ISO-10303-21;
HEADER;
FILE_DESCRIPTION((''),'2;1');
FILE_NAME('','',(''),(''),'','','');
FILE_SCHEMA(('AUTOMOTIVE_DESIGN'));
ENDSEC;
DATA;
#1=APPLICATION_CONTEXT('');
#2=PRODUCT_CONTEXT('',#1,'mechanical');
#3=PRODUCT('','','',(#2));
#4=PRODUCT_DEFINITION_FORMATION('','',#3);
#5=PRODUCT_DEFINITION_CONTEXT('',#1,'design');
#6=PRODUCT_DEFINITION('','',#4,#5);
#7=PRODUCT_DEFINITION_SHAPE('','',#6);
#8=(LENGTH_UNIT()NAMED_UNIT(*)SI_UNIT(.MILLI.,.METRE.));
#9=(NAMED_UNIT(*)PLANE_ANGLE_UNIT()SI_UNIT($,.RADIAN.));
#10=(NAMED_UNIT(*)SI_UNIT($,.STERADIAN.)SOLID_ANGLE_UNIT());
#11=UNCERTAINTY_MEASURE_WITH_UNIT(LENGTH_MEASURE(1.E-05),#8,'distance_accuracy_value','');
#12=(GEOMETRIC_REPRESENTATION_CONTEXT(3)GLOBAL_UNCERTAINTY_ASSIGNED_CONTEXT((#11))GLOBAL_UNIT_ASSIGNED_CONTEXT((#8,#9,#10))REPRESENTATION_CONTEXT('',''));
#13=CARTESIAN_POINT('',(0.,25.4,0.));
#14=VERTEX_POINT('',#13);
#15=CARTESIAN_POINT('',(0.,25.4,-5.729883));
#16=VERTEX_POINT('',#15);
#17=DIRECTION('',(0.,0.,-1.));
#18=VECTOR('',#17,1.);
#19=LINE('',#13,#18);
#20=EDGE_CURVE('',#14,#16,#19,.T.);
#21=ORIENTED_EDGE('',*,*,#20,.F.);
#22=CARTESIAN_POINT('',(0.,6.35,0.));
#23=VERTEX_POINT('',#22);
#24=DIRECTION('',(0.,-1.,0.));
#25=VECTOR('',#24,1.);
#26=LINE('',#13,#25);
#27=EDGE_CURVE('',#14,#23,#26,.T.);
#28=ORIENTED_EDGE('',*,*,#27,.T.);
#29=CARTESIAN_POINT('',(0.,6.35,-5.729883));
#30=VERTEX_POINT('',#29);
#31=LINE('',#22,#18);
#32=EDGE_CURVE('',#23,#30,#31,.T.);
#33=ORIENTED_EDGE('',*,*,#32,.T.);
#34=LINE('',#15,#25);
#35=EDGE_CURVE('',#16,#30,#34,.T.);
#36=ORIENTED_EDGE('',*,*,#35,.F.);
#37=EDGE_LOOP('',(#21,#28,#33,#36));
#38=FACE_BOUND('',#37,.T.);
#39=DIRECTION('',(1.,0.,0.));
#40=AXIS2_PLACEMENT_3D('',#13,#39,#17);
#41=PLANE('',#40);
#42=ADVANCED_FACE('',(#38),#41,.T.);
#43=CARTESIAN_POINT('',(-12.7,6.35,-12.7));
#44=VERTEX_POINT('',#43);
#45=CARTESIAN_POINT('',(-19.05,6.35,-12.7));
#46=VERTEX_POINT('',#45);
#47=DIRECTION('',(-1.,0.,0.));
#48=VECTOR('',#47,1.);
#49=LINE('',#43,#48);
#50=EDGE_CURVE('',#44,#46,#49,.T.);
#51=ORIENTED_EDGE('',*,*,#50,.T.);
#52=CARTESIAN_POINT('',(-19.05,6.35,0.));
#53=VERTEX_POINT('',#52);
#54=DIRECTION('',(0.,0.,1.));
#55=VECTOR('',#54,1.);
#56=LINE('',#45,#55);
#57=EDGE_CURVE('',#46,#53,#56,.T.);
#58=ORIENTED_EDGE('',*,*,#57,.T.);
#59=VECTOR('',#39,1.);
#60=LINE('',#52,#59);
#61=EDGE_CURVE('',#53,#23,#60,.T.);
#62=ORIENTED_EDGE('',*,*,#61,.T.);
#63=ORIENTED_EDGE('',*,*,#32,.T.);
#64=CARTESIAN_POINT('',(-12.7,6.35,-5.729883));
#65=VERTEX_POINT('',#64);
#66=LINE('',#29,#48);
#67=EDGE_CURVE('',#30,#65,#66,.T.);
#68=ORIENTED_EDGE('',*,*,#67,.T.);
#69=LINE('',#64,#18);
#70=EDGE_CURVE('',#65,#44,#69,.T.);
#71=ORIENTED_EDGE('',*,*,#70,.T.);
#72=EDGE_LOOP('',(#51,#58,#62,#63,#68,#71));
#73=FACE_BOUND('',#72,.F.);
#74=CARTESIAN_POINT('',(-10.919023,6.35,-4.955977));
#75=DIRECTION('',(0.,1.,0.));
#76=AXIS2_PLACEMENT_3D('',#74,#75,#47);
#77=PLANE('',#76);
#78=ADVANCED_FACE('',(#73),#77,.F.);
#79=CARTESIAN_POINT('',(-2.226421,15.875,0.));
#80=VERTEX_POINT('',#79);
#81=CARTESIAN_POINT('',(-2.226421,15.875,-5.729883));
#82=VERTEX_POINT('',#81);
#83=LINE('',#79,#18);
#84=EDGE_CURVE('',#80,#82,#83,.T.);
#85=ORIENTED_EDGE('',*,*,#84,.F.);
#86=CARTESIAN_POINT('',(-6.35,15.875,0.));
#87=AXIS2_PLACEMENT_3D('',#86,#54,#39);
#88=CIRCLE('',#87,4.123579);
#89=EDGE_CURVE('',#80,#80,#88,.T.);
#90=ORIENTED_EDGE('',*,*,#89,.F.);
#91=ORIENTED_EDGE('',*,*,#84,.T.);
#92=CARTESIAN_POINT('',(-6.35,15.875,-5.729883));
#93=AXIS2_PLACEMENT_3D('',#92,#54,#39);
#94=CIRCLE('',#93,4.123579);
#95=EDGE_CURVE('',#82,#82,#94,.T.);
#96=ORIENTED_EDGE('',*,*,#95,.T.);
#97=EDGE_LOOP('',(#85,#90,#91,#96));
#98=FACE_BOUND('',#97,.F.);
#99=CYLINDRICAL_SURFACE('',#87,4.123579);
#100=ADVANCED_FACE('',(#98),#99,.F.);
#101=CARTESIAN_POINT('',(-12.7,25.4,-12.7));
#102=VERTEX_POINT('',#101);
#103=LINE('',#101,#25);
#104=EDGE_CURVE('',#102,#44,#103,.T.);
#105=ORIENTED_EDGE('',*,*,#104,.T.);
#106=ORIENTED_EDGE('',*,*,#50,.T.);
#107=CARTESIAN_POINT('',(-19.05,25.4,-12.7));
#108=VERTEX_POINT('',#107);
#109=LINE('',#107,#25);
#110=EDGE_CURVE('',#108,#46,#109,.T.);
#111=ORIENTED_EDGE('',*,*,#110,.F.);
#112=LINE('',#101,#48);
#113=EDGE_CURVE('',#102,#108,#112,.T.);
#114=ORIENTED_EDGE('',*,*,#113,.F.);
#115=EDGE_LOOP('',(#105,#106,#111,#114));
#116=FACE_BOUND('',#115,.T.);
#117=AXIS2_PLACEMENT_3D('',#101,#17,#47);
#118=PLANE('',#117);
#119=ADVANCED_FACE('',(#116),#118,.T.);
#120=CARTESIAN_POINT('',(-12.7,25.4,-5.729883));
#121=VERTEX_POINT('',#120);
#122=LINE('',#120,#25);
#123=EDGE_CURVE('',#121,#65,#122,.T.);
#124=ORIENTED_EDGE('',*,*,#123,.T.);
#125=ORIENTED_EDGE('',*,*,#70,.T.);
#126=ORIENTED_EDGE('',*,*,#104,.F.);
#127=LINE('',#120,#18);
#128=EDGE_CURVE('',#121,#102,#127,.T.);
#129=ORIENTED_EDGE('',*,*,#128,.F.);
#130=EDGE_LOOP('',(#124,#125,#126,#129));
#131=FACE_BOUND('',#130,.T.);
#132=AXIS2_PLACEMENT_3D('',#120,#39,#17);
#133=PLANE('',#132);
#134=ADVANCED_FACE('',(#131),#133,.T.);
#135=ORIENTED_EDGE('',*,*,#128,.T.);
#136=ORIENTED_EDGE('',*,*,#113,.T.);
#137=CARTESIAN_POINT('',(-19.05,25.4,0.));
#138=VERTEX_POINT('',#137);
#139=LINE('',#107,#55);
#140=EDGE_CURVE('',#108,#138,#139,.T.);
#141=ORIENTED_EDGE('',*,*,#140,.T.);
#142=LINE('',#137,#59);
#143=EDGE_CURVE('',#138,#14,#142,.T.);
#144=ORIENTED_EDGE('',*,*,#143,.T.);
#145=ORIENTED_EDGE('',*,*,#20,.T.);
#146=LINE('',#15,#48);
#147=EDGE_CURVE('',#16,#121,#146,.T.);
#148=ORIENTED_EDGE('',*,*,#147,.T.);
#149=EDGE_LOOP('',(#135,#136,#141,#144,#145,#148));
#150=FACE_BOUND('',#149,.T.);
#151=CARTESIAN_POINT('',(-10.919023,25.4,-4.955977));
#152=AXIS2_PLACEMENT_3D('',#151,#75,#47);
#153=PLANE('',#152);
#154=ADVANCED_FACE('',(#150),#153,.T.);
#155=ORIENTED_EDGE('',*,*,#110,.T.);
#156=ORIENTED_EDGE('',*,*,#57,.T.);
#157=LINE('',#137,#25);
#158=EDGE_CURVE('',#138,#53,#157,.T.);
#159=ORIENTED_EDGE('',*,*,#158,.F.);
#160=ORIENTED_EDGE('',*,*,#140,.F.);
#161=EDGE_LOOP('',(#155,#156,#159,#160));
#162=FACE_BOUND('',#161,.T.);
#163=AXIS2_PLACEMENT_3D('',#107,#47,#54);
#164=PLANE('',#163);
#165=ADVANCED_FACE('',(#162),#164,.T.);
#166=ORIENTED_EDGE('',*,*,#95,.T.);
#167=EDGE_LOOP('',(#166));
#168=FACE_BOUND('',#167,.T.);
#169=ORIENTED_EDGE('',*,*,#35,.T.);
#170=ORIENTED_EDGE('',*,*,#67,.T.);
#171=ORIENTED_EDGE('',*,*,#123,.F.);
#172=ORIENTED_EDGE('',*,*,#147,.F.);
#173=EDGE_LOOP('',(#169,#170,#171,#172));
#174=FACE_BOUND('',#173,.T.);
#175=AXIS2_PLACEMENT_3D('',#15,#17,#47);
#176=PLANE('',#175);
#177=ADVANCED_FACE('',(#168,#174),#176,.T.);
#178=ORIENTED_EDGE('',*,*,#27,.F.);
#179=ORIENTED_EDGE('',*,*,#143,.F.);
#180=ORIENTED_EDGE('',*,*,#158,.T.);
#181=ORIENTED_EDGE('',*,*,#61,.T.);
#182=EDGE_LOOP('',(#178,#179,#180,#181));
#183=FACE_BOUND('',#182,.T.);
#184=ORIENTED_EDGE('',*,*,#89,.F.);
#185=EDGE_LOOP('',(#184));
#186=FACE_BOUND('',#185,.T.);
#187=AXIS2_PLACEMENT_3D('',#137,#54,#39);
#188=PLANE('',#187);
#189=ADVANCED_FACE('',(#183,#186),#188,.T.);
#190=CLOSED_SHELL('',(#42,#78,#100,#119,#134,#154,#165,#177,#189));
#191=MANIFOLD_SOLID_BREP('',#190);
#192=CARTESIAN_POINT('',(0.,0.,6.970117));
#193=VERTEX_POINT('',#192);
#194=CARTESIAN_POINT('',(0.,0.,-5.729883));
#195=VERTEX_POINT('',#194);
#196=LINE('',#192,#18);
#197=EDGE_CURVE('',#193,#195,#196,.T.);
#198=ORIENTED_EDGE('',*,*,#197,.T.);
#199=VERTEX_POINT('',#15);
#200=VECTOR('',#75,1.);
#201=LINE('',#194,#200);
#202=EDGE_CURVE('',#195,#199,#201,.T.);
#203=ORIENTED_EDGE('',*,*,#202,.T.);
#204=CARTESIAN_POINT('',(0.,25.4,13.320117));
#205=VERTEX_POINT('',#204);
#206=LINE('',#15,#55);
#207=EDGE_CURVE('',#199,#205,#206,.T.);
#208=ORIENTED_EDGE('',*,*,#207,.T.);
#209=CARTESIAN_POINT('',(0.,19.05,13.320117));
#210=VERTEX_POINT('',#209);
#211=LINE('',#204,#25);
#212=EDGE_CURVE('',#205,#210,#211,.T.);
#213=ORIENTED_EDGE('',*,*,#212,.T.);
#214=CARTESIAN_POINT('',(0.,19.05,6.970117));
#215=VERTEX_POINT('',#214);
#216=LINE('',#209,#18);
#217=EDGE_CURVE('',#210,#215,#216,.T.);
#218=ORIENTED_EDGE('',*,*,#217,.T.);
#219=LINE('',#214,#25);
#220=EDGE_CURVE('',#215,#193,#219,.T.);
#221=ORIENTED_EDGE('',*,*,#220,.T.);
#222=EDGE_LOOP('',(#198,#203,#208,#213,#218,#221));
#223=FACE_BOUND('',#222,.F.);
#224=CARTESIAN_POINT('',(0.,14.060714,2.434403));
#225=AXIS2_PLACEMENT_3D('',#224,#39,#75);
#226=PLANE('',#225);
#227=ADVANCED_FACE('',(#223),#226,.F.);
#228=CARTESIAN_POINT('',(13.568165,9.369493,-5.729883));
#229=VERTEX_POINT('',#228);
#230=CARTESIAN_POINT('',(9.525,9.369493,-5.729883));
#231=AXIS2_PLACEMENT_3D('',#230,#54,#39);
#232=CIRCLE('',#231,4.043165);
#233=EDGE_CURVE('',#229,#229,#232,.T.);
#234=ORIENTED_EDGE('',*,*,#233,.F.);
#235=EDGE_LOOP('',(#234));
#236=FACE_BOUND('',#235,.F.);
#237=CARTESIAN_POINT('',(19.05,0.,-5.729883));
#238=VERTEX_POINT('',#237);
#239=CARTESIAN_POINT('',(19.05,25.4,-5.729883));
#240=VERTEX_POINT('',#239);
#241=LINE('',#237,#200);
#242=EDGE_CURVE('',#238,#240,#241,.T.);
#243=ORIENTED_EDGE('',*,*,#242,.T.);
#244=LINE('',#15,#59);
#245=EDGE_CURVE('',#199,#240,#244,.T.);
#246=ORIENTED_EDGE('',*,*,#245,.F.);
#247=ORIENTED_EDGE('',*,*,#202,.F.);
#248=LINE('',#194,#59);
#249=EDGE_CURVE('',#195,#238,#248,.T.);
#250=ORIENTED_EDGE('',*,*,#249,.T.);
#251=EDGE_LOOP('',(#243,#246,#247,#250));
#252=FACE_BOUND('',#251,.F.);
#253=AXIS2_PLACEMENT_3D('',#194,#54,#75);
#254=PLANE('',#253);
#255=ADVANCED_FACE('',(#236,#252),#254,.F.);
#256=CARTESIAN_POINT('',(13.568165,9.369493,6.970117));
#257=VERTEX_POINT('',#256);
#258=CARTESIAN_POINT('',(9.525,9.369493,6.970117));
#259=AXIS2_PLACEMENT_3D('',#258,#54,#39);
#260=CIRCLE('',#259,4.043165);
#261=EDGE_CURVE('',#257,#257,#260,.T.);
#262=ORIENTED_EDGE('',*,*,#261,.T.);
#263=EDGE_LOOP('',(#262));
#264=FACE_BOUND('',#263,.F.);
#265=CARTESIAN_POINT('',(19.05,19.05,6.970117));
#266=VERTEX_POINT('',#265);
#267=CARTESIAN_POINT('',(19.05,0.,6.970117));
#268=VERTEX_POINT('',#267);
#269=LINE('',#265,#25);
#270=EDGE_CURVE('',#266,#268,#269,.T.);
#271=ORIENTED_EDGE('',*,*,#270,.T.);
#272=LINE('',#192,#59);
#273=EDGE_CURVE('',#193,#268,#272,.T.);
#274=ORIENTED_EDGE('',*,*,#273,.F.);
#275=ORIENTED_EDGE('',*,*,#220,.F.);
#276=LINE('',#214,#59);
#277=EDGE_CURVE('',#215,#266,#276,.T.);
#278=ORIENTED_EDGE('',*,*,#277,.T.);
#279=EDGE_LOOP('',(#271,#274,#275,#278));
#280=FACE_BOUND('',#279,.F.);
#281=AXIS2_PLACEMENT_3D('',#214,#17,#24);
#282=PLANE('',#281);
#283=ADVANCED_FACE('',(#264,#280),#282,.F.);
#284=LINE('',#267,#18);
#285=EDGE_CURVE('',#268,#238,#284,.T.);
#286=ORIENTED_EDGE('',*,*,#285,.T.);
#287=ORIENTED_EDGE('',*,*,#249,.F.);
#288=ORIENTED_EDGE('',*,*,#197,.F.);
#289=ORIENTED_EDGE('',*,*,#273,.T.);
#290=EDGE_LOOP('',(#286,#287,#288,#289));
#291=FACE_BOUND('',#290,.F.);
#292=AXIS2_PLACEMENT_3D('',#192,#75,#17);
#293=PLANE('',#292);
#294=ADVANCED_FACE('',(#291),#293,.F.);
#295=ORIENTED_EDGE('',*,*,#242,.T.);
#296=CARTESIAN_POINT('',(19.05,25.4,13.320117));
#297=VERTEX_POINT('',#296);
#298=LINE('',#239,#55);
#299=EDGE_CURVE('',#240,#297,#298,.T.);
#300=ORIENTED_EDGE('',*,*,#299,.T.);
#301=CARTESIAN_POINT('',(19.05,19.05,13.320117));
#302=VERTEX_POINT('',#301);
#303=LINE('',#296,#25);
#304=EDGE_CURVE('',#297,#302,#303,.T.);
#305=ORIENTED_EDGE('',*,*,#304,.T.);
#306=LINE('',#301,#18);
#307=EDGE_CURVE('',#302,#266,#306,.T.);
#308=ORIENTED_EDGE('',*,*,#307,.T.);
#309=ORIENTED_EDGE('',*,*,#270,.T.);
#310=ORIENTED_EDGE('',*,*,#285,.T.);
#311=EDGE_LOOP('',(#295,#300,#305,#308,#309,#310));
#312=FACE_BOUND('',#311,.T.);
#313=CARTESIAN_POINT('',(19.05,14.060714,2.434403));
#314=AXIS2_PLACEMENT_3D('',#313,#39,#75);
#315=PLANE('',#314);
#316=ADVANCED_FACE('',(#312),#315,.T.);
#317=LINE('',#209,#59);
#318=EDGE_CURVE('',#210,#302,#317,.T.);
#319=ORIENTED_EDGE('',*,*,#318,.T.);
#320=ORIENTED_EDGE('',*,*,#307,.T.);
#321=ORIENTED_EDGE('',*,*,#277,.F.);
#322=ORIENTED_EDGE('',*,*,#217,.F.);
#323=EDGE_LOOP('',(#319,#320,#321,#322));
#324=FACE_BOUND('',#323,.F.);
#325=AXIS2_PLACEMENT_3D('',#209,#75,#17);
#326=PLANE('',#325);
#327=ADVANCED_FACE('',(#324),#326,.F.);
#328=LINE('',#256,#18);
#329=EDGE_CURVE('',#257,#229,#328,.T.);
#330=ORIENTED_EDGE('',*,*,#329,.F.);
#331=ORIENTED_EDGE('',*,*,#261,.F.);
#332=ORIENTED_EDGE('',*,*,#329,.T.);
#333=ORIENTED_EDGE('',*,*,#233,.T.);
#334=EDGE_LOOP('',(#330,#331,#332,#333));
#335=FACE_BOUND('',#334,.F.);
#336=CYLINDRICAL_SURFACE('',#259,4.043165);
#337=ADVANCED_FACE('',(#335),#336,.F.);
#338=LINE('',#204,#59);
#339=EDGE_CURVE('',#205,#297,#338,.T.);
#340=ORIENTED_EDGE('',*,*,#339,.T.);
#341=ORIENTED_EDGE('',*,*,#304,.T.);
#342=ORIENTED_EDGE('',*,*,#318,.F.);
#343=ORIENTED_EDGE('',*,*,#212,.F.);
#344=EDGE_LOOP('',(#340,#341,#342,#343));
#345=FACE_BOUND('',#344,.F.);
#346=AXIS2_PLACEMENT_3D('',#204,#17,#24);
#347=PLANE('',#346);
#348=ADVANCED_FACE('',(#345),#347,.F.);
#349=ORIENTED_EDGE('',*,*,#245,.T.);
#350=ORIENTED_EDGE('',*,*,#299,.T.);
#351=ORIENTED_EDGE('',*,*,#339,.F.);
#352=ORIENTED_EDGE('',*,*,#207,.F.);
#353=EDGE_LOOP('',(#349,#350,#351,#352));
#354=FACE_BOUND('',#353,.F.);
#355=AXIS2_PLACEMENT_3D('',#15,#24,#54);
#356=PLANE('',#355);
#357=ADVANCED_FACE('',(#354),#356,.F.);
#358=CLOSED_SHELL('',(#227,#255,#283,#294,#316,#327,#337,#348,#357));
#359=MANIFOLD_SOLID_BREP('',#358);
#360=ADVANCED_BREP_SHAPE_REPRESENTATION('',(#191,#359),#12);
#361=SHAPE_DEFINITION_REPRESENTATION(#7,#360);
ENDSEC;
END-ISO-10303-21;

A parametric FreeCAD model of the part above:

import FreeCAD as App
import Part
import Sketcher
Q = App.Units.Quantity

doc = App.newDocument("Part")
body = doc.addObject("PartDesign::Body", "Body")

sketch1 = doc.addObject("Sketcher::SketchObject", "Sketch")
body.addObject(sketch1)
sketch1.AttachmentSupport = (doc.YZ_Plane, [""])
sketch1.MapMode = "FlatFace"
sketch1.addGeometry([
    Part.LineSegment(App.Vector(19, 7, 0), App.Vector(0, 7, 0)),
    Part.LineSegment(App.Vector(0, 7, 0), App.Vector(0, -6, 0)),
    Part.LineSegment(App.Vector(0, -6, 0), App.Vector(25, -6, 0)),
    Part.LineSegment(App.Vector(25, -6, 0), App.Vector(25, 13, 0)),
    Part.LineSegment(App.Vector(25, 13, 0), App.Vector(19, 13, 0)),
    Part.LineSegment(App.Vector(19, 13, 0), App.Vector(19, 7, 0)),
], False)
sketch1.addConstraint([
    Sketcher.Constraint("Coincident", 0, 2, 1, 1),
    Sketcher.Constraint("Coincident", 1, 2, 2, 1),
    Sketcher.Constraint("Coincident", 2, 2, 3, 1),
    Sketcher.Constraint("Coincident", 3, 2, 4, 1),
    Sketcher.Constraint("Coincident", 4, 2, 5, 1),
    Sketcher.Constraint("Coincident", 5, 2, 0, 1),
    Sketcher.Constraint("Horizontal", 0),
    Sketcher.Constraint("Vertical", 1),
    Sketcher.Constraint("Horizontal", 2),
    Sketcher.Constraint("Vertical", 3),
    Sketcher.Constraint("Horizontal", 4),
    Sketcher.Constraint("Vertical", 5),
    Sketcher.Constraint("PointOnObject", 0, 2, -2),
    Sketcher.Constraint("Equal", 0, 3),
    Sketcher.Constraint("Equal", 4, 5),
    Sketcher.Constraint("DistanceX", 2, 1, 2, 2, Q("1 in")),
    Sketcher.Constraint("DistanceY", 1, 2, 1, 1, Q("0.5 in")),
    Sketcher.Constraint("DistanceY", -1, 1, 0, 2, Q("6.970117 mm")),
])
pad1 = doc.addObject("PartDesign::Pad", "Pad")
body.addObject(pad1)
pad1.Profile = sketch1
pad1.Length = Q("0.75 in")

sketch2 = doc.addObject("Sketcher::SketchObject", "Sketch001")
body.addObject(sketch2)
sketch2.AttachmentSupport = (doc.XY_Plane, [""])
sketch2.MapMode = "FlatFace"
sketch2.AttachmentOffset = App.Placement(App.Vector(0, 0, 6.970117), App.Rotation())
sketch2.addGeometry(Part.Circle(App.Vector(9.5, 9.4, 0), App.Vector(0, 0, 1), 4), False)
sketch2.addConstraint([
    Sketcher.Constraint("Diameter", 0, Q("8.08633 mm")),
    Sketcher.Constraint("DistanceX", -1, 1, 0, 3, Q("0.375 in")),
    Sketcher.Constraint("DistanceY", -1, 1, 0, 3, Q("9.369493 mm")),
])
pocket1 = doc.addObject("PartDesign::Pocket", "Pocket")
body.addObject(pocket1)
pocket1.Profile = sketch2
pocket1.Length = Q("1 in")
body2 = doc.addObject("PartDesign::Body", "Body001")

sketch3 = doc.addObject("Sketcher::SketchObject", "Sketch002")
body2.addObject(sketch3)
sketch3.AttachmentSupport = (doc.getObject("XZ_Plane001"), [""])
sketch3.MapMode = "FlatFace"
sketch3.AttachmentOffset = App.Placement(App.Vector(0, 0, -1 * 25.4), App.Rotation())
sketch3.addGeometry([
    Part.LineSegment(App.Vector(0, 0, 0), App.Vector(0, -6, 0)),
    Part.LineSegment(App.Vector(0, -6, 0), App.Vector(-13, -6, 0)),
    Part.LineSegment(App.Vector(-13, -6, 0), App.Vector(-13, -13, 0)),
    Part.LineSegment(App.Vector(-13, -13, 0), App.Vector(-19, -13, 0)),
    Part.LineSegment(App.Vector(-19, -13, 0), App.Vector(-19, 0, 0)),
    Part.LineSegment(App.Vector(-19, 0, 0), App.Vector(0, 0, 0)),
], False)
sketch3.addConstraint([
    Sketcher.Constraint("Coincident", 0, 2, 1, 1),
    Sketcher.Constraint("Coincident", 1, 2, 2, 1),
    Sketcher.Constraint("Coincident", 2, 2, 3, 1),
    Sketcher.Constraint("Coincident", 3, 2, 4, 1),
    Sketcher.Constraint("Coincident", 4, 2, 5, 1),
    Sketcher.Constraint("Coincident", 5, 2, 0, 1),
    Sketcher.Constraint("Vertical", 0),
    Sketcher.Constraint("Horizontal", 1),
    Sketcher.Constraint("Vertical", 2),
    Sketcher.Constraint("Horizontal", 3),
    Sketcher.Constraint("Vertical", 4),
    Sketcher.Constraint("Horizontal", 5),
    Sketcher.Constraint("Coincident", 5, 2, -1, 1),
    Sketcher.Constraint("Equal", 1, 4),
    Sketcher.Constraint("DistanceX", 1, 2, 1, 1, Q("0.5 in")),
    Sketcher.Constraint("DistanceX", 3, 2, 3, 1, Q("0.25 in")),
    Sketcher.Constraint("DistanceY", 0, 2, 0, 1, Q("5.729883 mm")),
])
pad2 = doc.addObject("PartDesign::Pad", "Pad001")
body2.addObject(pad2)
pad2.Profile = sketch3
pad2.Length = Q("0.75 in")

sketch4 = doc.addObject("Sketcher::SketchObject", "Sketch003")
body2.addObject(sketch4)
sketch4.AttachmentSupport = (doc.getObject("XY_Plane001"), [""])
sketch4.MapMode = "FlatFace"
sketch4.addGeometry(Part.Circle(App.Vector(-6.3, 15.9, 0), App.Vector(0, 0, 1), 4.1), False)
sketch4.addConstraint([
    Sketcher.Constraint("DistanceX", 0, 3, -1, 1, Q("0.25 in")),
    Sketcher.Constraint("Diameter", 0, Q("8.247158 mm")),
    Sketcher.Constraint("DistanceY", -1, 1, 0, 3, Q("0.625 in")),
])
pocket2 = doc.addObject("PartDesign::Pocket", "Pocket001")
body2.addObject(pocket2)
pocket2.Profile = sketch4
pocket2.Length = Q("1 in")

doc.recompute()
